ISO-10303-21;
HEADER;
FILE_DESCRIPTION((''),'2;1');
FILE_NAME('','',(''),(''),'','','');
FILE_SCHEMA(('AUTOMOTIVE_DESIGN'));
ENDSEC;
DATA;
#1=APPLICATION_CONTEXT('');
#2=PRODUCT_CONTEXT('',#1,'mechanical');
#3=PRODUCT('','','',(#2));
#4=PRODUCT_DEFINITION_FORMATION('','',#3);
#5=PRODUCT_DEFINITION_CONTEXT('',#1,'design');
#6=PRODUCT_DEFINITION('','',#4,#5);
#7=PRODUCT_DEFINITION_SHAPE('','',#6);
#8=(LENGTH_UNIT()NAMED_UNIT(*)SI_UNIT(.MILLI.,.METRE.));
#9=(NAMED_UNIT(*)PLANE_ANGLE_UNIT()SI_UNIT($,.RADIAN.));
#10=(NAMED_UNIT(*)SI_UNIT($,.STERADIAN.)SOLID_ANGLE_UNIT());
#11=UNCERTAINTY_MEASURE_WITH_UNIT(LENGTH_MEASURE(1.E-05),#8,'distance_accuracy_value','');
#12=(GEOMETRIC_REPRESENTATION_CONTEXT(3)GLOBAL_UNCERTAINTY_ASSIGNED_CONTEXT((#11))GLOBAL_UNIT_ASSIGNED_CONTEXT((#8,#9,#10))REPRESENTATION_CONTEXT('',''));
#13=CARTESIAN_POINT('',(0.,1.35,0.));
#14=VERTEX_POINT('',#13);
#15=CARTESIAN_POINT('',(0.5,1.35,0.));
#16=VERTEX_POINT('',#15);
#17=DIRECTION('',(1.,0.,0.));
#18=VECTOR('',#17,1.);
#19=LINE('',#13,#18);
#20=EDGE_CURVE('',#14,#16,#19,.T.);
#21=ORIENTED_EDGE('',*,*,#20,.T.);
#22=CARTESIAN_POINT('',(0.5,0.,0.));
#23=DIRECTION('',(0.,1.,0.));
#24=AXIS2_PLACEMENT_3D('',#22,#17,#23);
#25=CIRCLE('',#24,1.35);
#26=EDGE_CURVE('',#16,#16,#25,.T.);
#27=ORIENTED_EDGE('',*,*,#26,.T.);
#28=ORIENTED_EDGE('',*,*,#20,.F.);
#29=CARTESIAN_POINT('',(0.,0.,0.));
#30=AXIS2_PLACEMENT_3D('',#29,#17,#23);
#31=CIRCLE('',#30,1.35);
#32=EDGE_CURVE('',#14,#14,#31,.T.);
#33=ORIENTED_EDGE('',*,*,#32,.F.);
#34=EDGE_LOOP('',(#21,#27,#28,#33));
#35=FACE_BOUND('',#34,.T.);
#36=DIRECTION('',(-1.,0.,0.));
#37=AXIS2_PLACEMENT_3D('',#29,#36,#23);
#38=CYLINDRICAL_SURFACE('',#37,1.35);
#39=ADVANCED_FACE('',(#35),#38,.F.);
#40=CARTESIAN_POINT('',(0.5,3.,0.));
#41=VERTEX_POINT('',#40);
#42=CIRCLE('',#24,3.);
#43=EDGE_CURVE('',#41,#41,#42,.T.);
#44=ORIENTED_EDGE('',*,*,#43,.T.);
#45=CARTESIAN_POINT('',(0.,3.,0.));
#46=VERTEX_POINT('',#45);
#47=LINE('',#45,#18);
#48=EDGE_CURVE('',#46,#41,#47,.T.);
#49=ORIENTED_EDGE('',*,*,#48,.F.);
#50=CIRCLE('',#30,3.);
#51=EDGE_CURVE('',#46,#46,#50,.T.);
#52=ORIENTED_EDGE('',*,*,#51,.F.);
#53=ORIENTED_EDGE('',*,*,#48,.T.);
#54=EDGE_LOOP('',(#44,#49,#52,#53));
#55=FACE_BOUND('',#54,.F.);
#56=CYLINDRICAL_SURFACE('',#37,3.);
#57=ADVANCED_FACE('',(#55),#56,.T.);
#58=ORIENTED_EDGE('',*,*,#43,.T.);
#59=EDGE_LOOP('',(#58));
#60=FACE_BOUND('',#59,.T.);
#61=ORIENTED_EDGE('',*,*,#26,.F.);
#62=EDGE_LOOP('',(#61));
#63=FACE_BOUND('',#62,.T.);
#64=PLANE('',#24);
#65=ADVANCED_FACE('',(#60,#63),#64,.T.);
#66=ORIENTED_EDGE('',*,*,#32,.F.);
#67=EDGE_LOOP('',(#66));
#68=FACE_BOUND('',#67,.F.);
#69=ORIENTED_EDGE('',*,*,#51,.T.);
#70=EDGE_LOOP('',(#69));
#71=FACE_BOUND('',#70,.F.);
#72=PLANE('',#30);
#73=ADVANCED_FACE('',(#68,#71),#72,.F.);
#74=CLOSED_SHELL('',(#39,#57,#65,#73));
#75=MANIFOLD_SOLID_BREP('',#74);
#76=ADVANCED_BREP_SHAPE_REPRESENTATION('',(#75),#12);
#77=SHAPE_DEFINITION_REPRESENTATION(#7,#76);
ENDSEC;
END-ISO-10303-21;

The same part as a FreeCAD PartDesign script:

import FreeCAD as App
import Part
import Sketcher

doc = App.newDocument("Part")
params = doc.addObject("Spreadsheet::Sheet", "Params")
for row, (alias, value) in enumerate([
    ("sketch1_diameter", "6 mm"),
    ("sketch1_diameter2", "2.7 mm"),
    ("pad1_length", "0.5 mm"),
], start=1):
    params.set(f"A{row}", alias)
    params.set(f"B{row}", "=" + value)
    params.setAlias(f"B{row}", alias)

body = doc.addObject("PartDesign::Body", "Body")

sketch1 = body.newObject("Sketcher::SketchObject", "Sketch")
sketch1.AttachmentSupport = (doc.getObject("YZ_Plane"), [""])
sketch1.MapMode = "FlatFace"
sketch1.addGeometry(Part.Circle(App.Vector(0, 0, 0), App.Vector(0, 0, 1), 3), False)
sketch1.addGeometry(Part.Circle(App.Vector(0, 0, 0), App.Vector(0, 0, 1), 1.4), False)
sketch1.addConstraint(Sketcher.Constraint("Coincident", 0, 3, -1, 1))
sketch1.addConstraint(Sketcher.Constraint("Coincident", 1, 3, -1, 1))
sketch1.addConstraint(Sketcher.Constraint("Diameter", 0, 6.0))
sketch1.addConstraint(Sketcher.Constraint("Diameter", 1, 2.7))
sketch1.setExpression("Constraints[2]", "Params.sketch1_diameter")
sketch1.setExpression("Constraints[3]", "Params.sketch1_diameter2")
pad1 = body.newObject("PartDesign::Pad", "Pad")
pad1.Profile = sketch1
pad1.setExpression("Length", "Params.pad1_length")

doc.recompute()
